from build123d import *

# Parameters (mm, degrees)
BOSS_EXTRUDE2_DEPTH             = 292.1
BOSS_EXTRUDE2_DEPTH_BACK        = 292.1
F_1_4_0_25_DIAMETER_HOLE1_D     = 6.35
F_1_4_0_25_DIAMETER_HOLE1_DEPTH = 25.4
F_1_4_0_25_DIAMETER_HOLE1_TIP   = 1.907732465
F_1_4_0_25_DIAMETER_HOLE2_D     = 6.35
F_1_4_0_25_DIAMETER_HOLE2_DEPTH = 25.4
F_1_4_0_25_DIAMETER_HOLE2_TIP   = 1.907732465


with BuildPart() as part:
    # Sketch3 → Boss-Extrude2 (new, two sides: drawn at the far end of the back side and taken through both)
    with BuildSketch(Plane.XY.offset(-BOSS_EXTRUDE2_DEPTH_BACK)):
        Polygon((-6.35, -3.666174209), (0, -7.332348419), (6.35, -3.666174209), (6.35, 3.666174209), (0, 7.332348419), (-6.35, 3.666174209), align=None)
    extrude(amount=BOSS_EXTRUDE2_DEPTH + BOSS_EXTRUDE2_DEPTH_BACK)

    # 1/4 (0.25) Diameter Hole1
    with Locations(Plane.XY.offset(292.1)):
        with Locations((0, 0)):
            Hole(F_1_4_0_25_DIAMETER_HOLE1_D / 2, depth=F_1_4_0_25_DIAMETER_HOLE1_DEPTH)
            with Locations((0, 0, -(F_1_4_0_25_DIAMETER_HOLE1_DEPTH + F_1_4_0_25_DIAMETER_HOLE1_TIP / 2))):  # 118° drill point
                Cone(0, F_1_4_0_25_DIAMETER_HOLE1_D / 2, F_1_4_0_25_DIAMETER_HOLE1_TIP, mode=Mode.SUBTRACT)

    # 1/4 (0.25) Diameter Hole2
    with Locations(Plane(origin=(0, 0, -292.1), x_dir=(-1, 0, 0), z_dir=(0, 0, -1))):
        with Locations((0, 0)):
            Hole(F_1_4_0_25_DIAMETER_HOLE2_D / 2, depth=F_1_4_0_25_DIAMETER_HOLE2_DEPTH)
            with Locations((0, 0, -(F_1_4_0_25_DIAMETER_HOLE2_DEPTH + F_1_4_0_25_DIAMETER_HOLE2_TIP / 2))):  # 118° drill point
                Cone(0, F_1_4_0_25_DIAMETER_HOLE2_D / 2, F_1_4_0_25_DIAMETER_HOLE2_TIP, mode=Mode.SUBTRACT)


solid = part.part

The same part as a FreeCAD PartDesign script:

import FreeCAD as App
import Part
import Sketcher
from FreeCAD import Vector
Q = App.Units.Quantity

doc = App.newDocument("Part")
body = doc.addObject("PartDesign::Body", "Body")

# Sketch on XY plane
sketch1 = body.newObject("Sketcher::SketchObject", "Sketch")
sketch1.AttachmentSupport = (doc.getObject("XY_Plane"), [""])
sketch1.MapMode = "FlatFace"
sketch1.addGeometry(Part.LineSegment(Vector(-6.35, -3.666174, 0), Vector(0, -7.332348, 0)), False)
sketch1.addGeometry(Part.LineSegment(Vector(0, -7.332348, 0), Vector(6.35, -3.666174, 0)), False)
sketch1.addGeometry(Part.LineSegment(Vector(6.35, -3.666174, 0), Vector(6.35, 3.666174, 0)), False)
sketch1.addGeometry(Part.LineSegment(Vector(6.35, 3.666174, 0), Vector(0, 7.332348, 0)), False)
sketch1.addGeometry(Part.LineSegment(Vector(0, 7.332348, 0), Vector(-6.35, 3.666174, 0)), False)
sketch1.addGeometry(Part.LineSegment(Vector(-6.35, 3.666174, 0), Vector(-6.35, -3.666174, 0)), False)
sketch1.addConstraint(Sketcher.Constraint("Coincident", 0, 2, 1, 1))
sketch1.addConstraint(Sketcher.Constraint("Coincident", 1, 2, 2, 1))
sketch1.addConstraint(Sketcher.Constraint("Coincident", 2, 2, 3, 1))
sketch1.addConstraint(Sketcher.Constraint("Coincident", 3, 2, 4, 1))
sketch1.addConstraint(Sketcher.Constraint("Coincident", 4, 2, 5, 1))
sketch1.addConstraint(Sketcher.Constraint("Coincident", 5, 2, 0, 1))
sketch1.addConstraint(Sketcher.Constraint("Vertical", 2))
sketch1.addConstraint(Sketcher.Constraint("Vertical", 5))
sketch1.addConstraint(Sketcher.Constraint("Symmetric", 0, 2, 3, 2, -1, 1))
sketch1.addConstraint(Sketcher.Constraint("Symmetric", 1, 2, 4, 2, -1, 1))
sketch1.addConstraint(Sketcher.Constraint("PointOnObject", 0, 2, -2))
sketch1.addConstraint(Sketcher.Constraint("Parallel", 0, 3))
sketch1.addConstraint(Sketcher.Constraint("Horizontal", 2, 2, 4, 2))
sketch1.addConstraint(Sketcher.Constraint("Angle", 0, Q("-30 deg")))
sketch1.addConstraint(Sketcher.Constraint("DistanceX", 4, 2, 2, 2, Q("0.5 in")))
sketch1.addConstraint(Sketcher.Constraint("DistanceY", 2, 1, 2, 2, 7.332348))
pad1 = body.newObject("PartDesign::Pad", "Pad")
pad1.Profile = sketch1
pad1.Type = "TwoLengths"
pad1.Length = Q("11.5 in")
pad1.Length2 = Q("11.5 in")

# Sketch on XY plane
sketch2 = body.newObject("Sketcher::SketchObject", "Sketch001")
sketch2.AttachmentSupport = (doc.getObject("XY_Plane"), [""])
sketch2.MapMode = "FlatFace"
sketch2.AttachmentOffset = App.Placement(Vector(0, 0, 11.5 * 25.4), App.Rotation())
sketch2.addGeometry(Part.Circle(Vector(0, 0, 0), Vector(0, 0, 1), 3.175), False)
sketch2.addConstraint(Sketcher.Constraint("Coincident", 0, 3, -1, 1))
sketch2.addConstraint(Sketcher.Constraint("Diameter", 0, Q("0.25 in")))
doc.recompute()
hole = body.newObject("PartDesign::Hole", "Hole")
hole.Profile = sketch2
hole.ThreadType = "None"
hole.Diameter = Q("0.25 in")
hole.DepthType = "Dimension"
hole.Depth = Q("1 in")
hole.DrillPoint = "Angled"
hole.DrillPointAngle = 118

# Sketch on XY plane
sketch3 = body.newObject("Sketcher::SketchObject", "Sketch002")
sketch3.AttachmentSupport = (doc.getObject("XY_Plane"), [""])
sketch3.MapMode = "FlatFace"
sketch3.AttachmentOffset = App.Placement(Vector(0, 0, -11.5 * 25.4), App.Rotation())
sketch3.addGeometry(Part.Circle(Vector(0, 0, 0), Vector(0, 0, 1), 3.175), False)
sketch3.addConstraint(Sketcher.Constraint("Coincident", 0, 3, -1, 1))
sketch3.addConstraint(Sketcher.Constraint("Diameter", 0, Q("0.25 in")))
doc.recompute()
hole2 = body.newObject("PartDesign::Hole", "Hole001")
hole2.Profile = sketch3
hole2.ThreadType = "None"
hole2.Diameter = Q("0.25 in")
hole2.DepthType = "Dimension"
hole2.Depth = Q("1 in")
hole2.DrillPoint = "Angled"
hole2.DrillPointAngle = 118
hole2.Reversed = True

doc.recompute()
